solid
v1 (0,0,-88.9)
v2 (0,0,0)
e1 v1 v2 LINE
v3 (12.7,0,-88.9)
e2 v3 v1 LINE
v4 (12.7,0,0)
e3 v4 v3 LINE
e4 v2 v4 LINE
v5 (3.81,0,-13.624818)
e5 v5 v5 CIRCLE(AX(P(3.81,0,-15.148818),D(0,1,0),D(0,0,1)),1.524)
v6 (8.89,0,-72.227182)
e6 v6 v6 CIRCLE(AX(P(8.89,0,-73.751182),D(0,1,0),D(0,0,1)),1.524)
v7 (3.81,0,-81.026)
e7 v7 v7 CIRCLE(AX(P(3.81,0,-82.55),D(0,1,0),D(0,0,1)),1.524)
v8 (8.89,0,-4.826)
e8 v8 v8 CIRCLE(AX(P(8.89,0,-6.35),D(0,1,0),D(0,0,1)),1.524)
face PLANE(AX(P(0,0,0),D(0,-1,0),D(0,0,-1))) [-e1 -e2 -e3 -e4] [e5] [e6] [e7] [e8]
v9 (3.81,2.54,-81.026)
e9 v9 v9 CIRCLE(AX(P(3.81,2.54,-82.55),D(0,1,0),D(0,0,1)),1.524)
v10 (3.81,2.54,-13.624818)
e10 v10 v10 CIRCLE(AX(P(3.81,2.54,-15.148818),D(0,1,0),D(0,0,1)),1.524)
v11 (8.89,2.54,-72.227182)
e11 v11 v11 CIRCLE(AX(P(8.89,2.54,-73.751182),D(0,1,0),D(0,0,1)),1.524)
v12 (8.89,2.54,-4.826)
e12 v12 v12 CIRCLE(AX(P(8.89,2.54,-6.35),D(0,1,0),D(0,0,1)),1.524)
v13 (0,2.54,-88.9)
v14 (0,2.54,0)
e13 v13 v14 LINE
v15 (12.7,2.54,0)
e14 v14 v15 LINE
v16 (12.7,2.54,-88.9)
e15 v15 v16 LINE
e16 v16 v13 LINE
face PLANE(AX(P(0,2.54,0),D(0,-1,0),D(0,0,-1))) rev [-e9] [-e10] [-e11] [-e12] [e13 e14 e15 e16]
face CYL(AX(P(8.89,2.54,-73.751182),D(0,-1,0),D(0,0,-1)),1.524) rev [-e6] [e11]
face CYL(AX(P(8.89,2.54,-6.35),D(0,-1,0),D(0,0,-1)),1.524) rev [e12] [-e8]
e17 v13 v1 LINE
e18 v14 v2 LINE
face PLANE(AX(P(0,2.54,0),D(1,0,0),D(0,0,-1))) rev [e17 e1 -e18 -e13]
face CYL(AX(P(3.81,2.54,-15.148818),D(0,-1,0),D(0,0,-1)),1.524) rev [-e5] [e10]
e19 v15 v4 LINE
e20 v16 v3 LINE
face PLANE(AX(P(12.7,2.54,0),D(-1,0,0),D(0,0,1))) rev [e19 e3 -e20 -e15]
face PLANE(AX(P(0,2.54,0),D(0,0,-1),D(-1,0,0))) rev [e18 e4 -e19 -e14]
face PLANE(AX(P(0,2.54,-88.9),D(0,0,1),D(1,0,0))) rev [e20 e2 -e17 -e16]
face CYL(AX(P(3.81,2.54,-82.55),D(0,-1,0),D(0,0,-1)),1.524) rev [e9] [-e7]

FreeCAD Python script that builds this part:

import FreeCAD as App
import Part
import Sketcher

V = App.Vector
Q = App.Units.Quantity

doc = App.newDocument("Part")
body = doc.addObject("PartDesign::Body", "Body")

# Sketch on XZ plane
sketch1 = body.newObject("Sketcher::SketchObject", "Sketch")
sketch1.AttachmentSupport = (doc.getObject("XZ_Plane"), [""])
sketch1.MapMode = "FlatFace"
sketch1.addGeometry([
    Part.LineSegment(V(0, -88.9, 0), V(0, 0, 0)),  # 0
    Part.LineSegment(V(0, 0, 0), V(12.7, 0, 0)),  # 1
    Part.LineSegment(V(12.7, 0, 0), V(12.7, -88.9, 0)),  # 2
    Part.LineSegment(V(12.7, -88.9, 0), V(0, -88.9, 0)),  # 3
    Part.Circle(V(3.81, -15.148818, 0), V(0, 0, 1), 1.524),  # 4
    Part.Circle(V(8.89, -6.35, 0), V(0, 0, 1), 1.524),  # 5
    Part.Circle(V(3.81, -82.55, 0), V(0, 0, 1), 1.524),  # 6
    Part.Circle(V(8.89, -73.751182, 0), V(0, 0, 1), 1.524),  # 7
], False)
sketch1.addConstraint([
    Sketcher.Constraint("Coincident", 0, 2, 1, 1),
    Sketcher.Constraint("Coincident", 1, 2, 2, 1),
    Sketcher.Constraint("Coincident", 2, 2, 3, 1),
    Sketcher.Constraint("Coincident", 3, 2, 0, 1),
    Sketcher.Constraint("Vertical", 0),
    Sketcher.Constraint("Horizontal", 1),
    Sketcher.Constraint("Vertical", 2),
    Sketcher.Constraint("Horizontal", 3),
    Sketcher.Constraint("Coincident", 0, 2, -1, 1),
    Sketcher.Constraint("Equal", 4, 5),
    Sketcher.Constraint("Equal", 5, 6),
    Sketcher.Constraint("Equal", 6, 7),
    Sketcher.Constraint("Vertical", 4, 3, 6, 3),
    Sketcher.Constraint("Vertical", 5, 3, 7, 3),
    Sketcher.Constraint("Diameter", 4, Q("0.12 in")),
    Sketcher.Constraint("DistanceX", 1, 1, 1, 2, Q("0.5 in")),
    Sketcher.Constraint("DistanceY", 0, 1, 0, 2, Q("3.5 in")),
    Sketcher.Constraint("DistanceY", 6, 3, 5, 3, Q("3 in")),
    Sketcher.Constraint("DistanceX", 4, 3, 5, 3, Q("0.2 in")),
    Sketcher.Constraint("DistanceX", -1, 1, 4, 3, Q("0.15 in")),
    Sketcher.Constraint("DistanceY", 5, 3, -1, 1, Q("0.25 in")),
    Sketcher.Constraint("DistanceY", 4, 3, -1, 1, Q("15.148818 mm")),
    Sketcher.Constraint("DistanceY", 7, 3, -1, 1, Q("73.751182 mm")),
])
pad1 = body.newObject("PartDesign::Pad", "Pad")
pad1.Profile = sketch1
pad1.Length = Q("0.1 in")
pad1.Reversed = True

doc.recompute()
